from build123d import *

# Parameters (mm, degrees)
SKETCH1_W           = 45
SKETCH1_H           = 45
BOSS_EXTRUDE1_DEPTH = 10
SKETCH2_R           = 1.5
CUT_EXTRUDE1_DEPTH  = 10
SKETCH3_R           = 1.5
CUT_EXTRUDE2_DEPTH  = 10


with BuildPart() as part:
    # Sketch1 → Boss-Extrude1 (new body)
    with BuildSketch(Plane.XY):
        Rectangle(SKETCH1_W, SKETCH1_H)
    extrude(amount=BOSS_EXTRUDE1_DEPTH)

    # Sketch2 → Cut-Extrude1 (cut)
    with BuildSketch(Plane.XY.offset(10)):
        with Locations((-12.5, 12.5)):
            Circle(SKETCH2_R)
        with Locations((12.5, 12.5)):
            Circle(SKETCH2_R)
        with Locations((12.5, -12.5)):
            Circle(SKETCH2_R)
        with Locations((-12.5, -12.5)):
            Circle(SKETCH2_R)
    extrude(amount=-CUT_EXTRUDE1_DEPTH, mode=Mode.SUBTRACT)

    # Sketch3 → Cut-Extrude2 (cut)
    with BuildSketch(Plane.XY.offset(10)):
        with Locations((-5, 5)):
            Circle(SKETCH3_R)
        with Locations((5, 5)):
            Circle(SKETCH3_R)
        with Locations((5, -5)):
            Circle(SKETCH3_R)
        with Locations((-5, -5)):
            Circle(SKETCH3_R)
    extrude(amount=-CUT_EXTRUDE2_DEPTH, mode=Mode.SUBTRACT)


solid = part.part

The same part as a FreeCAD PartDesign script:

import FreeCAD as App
import Part
import Sketcher

V = App.Vector

doc = App.newDocument("Part")
body = doc.addObject("PartDesign::Body", "Body")

sketch1 = body.newObject("Sketcher::SketchObject", "Sketch")
sketch1.AttachmentSupport = (doc.getObject("XY_Plane"), [""])
sketch1.MapMode = "FlatFace"
sketch1.addGeometry(Part.LineSegment(V(-22.5, 22.5, 0), V(-22.5, -22.5, 0)), False)
sketch1.addGeometry(Part.LineSegment(V(-22.5, -22.5, 0), V(22.5, -22.5, 0)), False)
sketch1.addGeometry(Part.LineSegment(V(22.5, -22.5, 0), V(22.5, 22.5, 0)), False)
sketch1.addGeometry(Part.LineSegment(V(22.5, 22.5, 0), V(-22.5, 22.5, 0)), False)
sketch1.addConstraint(Sketcher.Constraint("Coincident", 0, 2, 1, 1))
sketch1.addConstraint(Sketcher.Constraint("Coincident", 1, 2, 2, 1))
sketch1.addConstraint(Sketcher.Constraint("Coincident", 2, 2, 3, 1))
sketch1.addConstraint(Sketcher.Constraint("Coincident", 3, 2, 0, 1))
sketch1.addConstraint(Sketcher.Constraint("Vertical", 0))
sketch1.addConstraint(Sketcher.Constraint("Horizontal", 1))
sketch1.addConstraint(Sketcher.Constraint("Vertical", 2))
sketch1.addConstraint(Sketcher.Constraint("Horizontal", 3))
sketch1.addConstraint(Sketcher.Constraint("Symmetric", 0, 2, 2, 2, -1, 1))
sketch1.addConstraint(Sketcher.Constraint("Equal", 3, 0))
sketch1.addConstraint(Sketcher.Constraint("DistanceX", 1, 1, 1, 2, 45.0))
pad1 = body.newObject("PartDesign::Pad", "Pad")
pad1.Profile = sketch1
pad1.Length = 10

sketch2 = body.newObject("Sketcher::SketchObject", "Sketch001")
sketch2.AttachmentSupport = (doc.getObject("XY_Plane"), [""])
sketch2.MapMode = "FlatFace"
sketch2.AttachmentOffset = App.Placement(V(0, 0, 10), App.Rotation())
sketch2.addGeometry(Part.Circle(V(-12.5, 12.5, 0), V(0, 0, 1), 1.5), False)
sketch2.addGeometry(Part.Circle(V(12.5, 12.5, 0), V(0, 0, 1), 1.5), False)
sketch2.addGeometry(Part.Circle(V(12.5, -12.5, 0), V(0, 0, 1), 1.5), False)
sketch2.addGeometry(Part.Circle(V(-12.5, -12.5, 0), V(0, 0, 1), 1.5), False)
sketch2.addConstraint(Sketcher.Constraint("Equal", 0, 1))
sketch2.addConstraint(Sketcher.Constraint("Equal", 1, 2))
sketch2.addConstraint(Sketcher.Constraint("Equal", 2, 3))
sketch2.addConstraint(Sketcher.Constraint("Symmetric", 0, 3, 2, 3, -1, 1))
sketch2.addConstraint(Sketcher.Constraint("Symmetric", 1, 3, 3, 3, -1, 1))
sketch2.addConstraint(Sketcher.Constraint("Symmetric", 0, 3, 1, 3, -2))
sketch2.addConstraint(Sketcher.Constraint("Diameter", 0, 3.0))
sketch2.addConstraint(Sketcher.Constraint("DistanceX", 0, 3, 1, 3, 25.0))
sketch2.addConstraint(Sketcher.Constraint("DistanceY", 2, 3, 1, 3, 25.0))
pocket1 = body.newObject("PartDesign::Pocket", "Pocket")
pocket1.Profile = sketch2
pocket1.Length = 10

sketch3 = body.newObject("Sketcher::SketchObject", "Sketch002")
sketch3.AttachmentSupport = (doc.getObject("XY_Plane"), [""])
sketch3.MapMode = "FlatFace"
sketch3.AttachmentOffset = App.Placement(V(0, 0, 10), App.Rotation())
sketch3.addGeometry(Part.Circle(V(-5, 5, 0), V(0, 0, 1), 1.5), False)
sketch3.addGeometry(Part.Circle(V(5, 5, 0), V(0, 0, 1), 1.5), False)
sketch3.addGeometry(Part.Circle(V(5, -5, 0), V(0, 0, 1), 1.5), False)
sketch3.addGeometry(Part.Circle(V(-5, -5, 0), V(0, 0, 1), 1.5), False)
sketch3.addConstraint(Sketcher.Constraint("Equal", 0, 1))
sketch3.addConstraint(Sketcher.Constraint("Equal", 1, 2))
sketch3.addConstraint(Sketcher.Constraint("Equal", 2, 3))
sketch3.addConstraint(Sketcher.Constraint("Symmetric", 0, 3, 2, 3, -1, 1))
sketch3.addConstraint(Sketcher.Constraint("Symmetric", 1, 3, 3, 3, -1, 1))
sketch3.addConstraint(Sketcher.Constraint("Symmetric", 0, 3, 1, 3, -2))
sketch3.addConstraint(Sketcher.Constraint("Diameter", 0, 3.0))
sketch3.addConstraint(Sketcher.Constraint("DistanceX", 0, 3, -1, 1, 5.0))
sketch3.addConstraint(Sketcher.Constraint("DistanceY", -1, 1, 0, 3, 5.0))
pocket2 = body.newObject("PartDesign::Pocket", "Pocket001")
pocket2.Profile = sketch3
pocket2.Length = 10

doc.recompute()
